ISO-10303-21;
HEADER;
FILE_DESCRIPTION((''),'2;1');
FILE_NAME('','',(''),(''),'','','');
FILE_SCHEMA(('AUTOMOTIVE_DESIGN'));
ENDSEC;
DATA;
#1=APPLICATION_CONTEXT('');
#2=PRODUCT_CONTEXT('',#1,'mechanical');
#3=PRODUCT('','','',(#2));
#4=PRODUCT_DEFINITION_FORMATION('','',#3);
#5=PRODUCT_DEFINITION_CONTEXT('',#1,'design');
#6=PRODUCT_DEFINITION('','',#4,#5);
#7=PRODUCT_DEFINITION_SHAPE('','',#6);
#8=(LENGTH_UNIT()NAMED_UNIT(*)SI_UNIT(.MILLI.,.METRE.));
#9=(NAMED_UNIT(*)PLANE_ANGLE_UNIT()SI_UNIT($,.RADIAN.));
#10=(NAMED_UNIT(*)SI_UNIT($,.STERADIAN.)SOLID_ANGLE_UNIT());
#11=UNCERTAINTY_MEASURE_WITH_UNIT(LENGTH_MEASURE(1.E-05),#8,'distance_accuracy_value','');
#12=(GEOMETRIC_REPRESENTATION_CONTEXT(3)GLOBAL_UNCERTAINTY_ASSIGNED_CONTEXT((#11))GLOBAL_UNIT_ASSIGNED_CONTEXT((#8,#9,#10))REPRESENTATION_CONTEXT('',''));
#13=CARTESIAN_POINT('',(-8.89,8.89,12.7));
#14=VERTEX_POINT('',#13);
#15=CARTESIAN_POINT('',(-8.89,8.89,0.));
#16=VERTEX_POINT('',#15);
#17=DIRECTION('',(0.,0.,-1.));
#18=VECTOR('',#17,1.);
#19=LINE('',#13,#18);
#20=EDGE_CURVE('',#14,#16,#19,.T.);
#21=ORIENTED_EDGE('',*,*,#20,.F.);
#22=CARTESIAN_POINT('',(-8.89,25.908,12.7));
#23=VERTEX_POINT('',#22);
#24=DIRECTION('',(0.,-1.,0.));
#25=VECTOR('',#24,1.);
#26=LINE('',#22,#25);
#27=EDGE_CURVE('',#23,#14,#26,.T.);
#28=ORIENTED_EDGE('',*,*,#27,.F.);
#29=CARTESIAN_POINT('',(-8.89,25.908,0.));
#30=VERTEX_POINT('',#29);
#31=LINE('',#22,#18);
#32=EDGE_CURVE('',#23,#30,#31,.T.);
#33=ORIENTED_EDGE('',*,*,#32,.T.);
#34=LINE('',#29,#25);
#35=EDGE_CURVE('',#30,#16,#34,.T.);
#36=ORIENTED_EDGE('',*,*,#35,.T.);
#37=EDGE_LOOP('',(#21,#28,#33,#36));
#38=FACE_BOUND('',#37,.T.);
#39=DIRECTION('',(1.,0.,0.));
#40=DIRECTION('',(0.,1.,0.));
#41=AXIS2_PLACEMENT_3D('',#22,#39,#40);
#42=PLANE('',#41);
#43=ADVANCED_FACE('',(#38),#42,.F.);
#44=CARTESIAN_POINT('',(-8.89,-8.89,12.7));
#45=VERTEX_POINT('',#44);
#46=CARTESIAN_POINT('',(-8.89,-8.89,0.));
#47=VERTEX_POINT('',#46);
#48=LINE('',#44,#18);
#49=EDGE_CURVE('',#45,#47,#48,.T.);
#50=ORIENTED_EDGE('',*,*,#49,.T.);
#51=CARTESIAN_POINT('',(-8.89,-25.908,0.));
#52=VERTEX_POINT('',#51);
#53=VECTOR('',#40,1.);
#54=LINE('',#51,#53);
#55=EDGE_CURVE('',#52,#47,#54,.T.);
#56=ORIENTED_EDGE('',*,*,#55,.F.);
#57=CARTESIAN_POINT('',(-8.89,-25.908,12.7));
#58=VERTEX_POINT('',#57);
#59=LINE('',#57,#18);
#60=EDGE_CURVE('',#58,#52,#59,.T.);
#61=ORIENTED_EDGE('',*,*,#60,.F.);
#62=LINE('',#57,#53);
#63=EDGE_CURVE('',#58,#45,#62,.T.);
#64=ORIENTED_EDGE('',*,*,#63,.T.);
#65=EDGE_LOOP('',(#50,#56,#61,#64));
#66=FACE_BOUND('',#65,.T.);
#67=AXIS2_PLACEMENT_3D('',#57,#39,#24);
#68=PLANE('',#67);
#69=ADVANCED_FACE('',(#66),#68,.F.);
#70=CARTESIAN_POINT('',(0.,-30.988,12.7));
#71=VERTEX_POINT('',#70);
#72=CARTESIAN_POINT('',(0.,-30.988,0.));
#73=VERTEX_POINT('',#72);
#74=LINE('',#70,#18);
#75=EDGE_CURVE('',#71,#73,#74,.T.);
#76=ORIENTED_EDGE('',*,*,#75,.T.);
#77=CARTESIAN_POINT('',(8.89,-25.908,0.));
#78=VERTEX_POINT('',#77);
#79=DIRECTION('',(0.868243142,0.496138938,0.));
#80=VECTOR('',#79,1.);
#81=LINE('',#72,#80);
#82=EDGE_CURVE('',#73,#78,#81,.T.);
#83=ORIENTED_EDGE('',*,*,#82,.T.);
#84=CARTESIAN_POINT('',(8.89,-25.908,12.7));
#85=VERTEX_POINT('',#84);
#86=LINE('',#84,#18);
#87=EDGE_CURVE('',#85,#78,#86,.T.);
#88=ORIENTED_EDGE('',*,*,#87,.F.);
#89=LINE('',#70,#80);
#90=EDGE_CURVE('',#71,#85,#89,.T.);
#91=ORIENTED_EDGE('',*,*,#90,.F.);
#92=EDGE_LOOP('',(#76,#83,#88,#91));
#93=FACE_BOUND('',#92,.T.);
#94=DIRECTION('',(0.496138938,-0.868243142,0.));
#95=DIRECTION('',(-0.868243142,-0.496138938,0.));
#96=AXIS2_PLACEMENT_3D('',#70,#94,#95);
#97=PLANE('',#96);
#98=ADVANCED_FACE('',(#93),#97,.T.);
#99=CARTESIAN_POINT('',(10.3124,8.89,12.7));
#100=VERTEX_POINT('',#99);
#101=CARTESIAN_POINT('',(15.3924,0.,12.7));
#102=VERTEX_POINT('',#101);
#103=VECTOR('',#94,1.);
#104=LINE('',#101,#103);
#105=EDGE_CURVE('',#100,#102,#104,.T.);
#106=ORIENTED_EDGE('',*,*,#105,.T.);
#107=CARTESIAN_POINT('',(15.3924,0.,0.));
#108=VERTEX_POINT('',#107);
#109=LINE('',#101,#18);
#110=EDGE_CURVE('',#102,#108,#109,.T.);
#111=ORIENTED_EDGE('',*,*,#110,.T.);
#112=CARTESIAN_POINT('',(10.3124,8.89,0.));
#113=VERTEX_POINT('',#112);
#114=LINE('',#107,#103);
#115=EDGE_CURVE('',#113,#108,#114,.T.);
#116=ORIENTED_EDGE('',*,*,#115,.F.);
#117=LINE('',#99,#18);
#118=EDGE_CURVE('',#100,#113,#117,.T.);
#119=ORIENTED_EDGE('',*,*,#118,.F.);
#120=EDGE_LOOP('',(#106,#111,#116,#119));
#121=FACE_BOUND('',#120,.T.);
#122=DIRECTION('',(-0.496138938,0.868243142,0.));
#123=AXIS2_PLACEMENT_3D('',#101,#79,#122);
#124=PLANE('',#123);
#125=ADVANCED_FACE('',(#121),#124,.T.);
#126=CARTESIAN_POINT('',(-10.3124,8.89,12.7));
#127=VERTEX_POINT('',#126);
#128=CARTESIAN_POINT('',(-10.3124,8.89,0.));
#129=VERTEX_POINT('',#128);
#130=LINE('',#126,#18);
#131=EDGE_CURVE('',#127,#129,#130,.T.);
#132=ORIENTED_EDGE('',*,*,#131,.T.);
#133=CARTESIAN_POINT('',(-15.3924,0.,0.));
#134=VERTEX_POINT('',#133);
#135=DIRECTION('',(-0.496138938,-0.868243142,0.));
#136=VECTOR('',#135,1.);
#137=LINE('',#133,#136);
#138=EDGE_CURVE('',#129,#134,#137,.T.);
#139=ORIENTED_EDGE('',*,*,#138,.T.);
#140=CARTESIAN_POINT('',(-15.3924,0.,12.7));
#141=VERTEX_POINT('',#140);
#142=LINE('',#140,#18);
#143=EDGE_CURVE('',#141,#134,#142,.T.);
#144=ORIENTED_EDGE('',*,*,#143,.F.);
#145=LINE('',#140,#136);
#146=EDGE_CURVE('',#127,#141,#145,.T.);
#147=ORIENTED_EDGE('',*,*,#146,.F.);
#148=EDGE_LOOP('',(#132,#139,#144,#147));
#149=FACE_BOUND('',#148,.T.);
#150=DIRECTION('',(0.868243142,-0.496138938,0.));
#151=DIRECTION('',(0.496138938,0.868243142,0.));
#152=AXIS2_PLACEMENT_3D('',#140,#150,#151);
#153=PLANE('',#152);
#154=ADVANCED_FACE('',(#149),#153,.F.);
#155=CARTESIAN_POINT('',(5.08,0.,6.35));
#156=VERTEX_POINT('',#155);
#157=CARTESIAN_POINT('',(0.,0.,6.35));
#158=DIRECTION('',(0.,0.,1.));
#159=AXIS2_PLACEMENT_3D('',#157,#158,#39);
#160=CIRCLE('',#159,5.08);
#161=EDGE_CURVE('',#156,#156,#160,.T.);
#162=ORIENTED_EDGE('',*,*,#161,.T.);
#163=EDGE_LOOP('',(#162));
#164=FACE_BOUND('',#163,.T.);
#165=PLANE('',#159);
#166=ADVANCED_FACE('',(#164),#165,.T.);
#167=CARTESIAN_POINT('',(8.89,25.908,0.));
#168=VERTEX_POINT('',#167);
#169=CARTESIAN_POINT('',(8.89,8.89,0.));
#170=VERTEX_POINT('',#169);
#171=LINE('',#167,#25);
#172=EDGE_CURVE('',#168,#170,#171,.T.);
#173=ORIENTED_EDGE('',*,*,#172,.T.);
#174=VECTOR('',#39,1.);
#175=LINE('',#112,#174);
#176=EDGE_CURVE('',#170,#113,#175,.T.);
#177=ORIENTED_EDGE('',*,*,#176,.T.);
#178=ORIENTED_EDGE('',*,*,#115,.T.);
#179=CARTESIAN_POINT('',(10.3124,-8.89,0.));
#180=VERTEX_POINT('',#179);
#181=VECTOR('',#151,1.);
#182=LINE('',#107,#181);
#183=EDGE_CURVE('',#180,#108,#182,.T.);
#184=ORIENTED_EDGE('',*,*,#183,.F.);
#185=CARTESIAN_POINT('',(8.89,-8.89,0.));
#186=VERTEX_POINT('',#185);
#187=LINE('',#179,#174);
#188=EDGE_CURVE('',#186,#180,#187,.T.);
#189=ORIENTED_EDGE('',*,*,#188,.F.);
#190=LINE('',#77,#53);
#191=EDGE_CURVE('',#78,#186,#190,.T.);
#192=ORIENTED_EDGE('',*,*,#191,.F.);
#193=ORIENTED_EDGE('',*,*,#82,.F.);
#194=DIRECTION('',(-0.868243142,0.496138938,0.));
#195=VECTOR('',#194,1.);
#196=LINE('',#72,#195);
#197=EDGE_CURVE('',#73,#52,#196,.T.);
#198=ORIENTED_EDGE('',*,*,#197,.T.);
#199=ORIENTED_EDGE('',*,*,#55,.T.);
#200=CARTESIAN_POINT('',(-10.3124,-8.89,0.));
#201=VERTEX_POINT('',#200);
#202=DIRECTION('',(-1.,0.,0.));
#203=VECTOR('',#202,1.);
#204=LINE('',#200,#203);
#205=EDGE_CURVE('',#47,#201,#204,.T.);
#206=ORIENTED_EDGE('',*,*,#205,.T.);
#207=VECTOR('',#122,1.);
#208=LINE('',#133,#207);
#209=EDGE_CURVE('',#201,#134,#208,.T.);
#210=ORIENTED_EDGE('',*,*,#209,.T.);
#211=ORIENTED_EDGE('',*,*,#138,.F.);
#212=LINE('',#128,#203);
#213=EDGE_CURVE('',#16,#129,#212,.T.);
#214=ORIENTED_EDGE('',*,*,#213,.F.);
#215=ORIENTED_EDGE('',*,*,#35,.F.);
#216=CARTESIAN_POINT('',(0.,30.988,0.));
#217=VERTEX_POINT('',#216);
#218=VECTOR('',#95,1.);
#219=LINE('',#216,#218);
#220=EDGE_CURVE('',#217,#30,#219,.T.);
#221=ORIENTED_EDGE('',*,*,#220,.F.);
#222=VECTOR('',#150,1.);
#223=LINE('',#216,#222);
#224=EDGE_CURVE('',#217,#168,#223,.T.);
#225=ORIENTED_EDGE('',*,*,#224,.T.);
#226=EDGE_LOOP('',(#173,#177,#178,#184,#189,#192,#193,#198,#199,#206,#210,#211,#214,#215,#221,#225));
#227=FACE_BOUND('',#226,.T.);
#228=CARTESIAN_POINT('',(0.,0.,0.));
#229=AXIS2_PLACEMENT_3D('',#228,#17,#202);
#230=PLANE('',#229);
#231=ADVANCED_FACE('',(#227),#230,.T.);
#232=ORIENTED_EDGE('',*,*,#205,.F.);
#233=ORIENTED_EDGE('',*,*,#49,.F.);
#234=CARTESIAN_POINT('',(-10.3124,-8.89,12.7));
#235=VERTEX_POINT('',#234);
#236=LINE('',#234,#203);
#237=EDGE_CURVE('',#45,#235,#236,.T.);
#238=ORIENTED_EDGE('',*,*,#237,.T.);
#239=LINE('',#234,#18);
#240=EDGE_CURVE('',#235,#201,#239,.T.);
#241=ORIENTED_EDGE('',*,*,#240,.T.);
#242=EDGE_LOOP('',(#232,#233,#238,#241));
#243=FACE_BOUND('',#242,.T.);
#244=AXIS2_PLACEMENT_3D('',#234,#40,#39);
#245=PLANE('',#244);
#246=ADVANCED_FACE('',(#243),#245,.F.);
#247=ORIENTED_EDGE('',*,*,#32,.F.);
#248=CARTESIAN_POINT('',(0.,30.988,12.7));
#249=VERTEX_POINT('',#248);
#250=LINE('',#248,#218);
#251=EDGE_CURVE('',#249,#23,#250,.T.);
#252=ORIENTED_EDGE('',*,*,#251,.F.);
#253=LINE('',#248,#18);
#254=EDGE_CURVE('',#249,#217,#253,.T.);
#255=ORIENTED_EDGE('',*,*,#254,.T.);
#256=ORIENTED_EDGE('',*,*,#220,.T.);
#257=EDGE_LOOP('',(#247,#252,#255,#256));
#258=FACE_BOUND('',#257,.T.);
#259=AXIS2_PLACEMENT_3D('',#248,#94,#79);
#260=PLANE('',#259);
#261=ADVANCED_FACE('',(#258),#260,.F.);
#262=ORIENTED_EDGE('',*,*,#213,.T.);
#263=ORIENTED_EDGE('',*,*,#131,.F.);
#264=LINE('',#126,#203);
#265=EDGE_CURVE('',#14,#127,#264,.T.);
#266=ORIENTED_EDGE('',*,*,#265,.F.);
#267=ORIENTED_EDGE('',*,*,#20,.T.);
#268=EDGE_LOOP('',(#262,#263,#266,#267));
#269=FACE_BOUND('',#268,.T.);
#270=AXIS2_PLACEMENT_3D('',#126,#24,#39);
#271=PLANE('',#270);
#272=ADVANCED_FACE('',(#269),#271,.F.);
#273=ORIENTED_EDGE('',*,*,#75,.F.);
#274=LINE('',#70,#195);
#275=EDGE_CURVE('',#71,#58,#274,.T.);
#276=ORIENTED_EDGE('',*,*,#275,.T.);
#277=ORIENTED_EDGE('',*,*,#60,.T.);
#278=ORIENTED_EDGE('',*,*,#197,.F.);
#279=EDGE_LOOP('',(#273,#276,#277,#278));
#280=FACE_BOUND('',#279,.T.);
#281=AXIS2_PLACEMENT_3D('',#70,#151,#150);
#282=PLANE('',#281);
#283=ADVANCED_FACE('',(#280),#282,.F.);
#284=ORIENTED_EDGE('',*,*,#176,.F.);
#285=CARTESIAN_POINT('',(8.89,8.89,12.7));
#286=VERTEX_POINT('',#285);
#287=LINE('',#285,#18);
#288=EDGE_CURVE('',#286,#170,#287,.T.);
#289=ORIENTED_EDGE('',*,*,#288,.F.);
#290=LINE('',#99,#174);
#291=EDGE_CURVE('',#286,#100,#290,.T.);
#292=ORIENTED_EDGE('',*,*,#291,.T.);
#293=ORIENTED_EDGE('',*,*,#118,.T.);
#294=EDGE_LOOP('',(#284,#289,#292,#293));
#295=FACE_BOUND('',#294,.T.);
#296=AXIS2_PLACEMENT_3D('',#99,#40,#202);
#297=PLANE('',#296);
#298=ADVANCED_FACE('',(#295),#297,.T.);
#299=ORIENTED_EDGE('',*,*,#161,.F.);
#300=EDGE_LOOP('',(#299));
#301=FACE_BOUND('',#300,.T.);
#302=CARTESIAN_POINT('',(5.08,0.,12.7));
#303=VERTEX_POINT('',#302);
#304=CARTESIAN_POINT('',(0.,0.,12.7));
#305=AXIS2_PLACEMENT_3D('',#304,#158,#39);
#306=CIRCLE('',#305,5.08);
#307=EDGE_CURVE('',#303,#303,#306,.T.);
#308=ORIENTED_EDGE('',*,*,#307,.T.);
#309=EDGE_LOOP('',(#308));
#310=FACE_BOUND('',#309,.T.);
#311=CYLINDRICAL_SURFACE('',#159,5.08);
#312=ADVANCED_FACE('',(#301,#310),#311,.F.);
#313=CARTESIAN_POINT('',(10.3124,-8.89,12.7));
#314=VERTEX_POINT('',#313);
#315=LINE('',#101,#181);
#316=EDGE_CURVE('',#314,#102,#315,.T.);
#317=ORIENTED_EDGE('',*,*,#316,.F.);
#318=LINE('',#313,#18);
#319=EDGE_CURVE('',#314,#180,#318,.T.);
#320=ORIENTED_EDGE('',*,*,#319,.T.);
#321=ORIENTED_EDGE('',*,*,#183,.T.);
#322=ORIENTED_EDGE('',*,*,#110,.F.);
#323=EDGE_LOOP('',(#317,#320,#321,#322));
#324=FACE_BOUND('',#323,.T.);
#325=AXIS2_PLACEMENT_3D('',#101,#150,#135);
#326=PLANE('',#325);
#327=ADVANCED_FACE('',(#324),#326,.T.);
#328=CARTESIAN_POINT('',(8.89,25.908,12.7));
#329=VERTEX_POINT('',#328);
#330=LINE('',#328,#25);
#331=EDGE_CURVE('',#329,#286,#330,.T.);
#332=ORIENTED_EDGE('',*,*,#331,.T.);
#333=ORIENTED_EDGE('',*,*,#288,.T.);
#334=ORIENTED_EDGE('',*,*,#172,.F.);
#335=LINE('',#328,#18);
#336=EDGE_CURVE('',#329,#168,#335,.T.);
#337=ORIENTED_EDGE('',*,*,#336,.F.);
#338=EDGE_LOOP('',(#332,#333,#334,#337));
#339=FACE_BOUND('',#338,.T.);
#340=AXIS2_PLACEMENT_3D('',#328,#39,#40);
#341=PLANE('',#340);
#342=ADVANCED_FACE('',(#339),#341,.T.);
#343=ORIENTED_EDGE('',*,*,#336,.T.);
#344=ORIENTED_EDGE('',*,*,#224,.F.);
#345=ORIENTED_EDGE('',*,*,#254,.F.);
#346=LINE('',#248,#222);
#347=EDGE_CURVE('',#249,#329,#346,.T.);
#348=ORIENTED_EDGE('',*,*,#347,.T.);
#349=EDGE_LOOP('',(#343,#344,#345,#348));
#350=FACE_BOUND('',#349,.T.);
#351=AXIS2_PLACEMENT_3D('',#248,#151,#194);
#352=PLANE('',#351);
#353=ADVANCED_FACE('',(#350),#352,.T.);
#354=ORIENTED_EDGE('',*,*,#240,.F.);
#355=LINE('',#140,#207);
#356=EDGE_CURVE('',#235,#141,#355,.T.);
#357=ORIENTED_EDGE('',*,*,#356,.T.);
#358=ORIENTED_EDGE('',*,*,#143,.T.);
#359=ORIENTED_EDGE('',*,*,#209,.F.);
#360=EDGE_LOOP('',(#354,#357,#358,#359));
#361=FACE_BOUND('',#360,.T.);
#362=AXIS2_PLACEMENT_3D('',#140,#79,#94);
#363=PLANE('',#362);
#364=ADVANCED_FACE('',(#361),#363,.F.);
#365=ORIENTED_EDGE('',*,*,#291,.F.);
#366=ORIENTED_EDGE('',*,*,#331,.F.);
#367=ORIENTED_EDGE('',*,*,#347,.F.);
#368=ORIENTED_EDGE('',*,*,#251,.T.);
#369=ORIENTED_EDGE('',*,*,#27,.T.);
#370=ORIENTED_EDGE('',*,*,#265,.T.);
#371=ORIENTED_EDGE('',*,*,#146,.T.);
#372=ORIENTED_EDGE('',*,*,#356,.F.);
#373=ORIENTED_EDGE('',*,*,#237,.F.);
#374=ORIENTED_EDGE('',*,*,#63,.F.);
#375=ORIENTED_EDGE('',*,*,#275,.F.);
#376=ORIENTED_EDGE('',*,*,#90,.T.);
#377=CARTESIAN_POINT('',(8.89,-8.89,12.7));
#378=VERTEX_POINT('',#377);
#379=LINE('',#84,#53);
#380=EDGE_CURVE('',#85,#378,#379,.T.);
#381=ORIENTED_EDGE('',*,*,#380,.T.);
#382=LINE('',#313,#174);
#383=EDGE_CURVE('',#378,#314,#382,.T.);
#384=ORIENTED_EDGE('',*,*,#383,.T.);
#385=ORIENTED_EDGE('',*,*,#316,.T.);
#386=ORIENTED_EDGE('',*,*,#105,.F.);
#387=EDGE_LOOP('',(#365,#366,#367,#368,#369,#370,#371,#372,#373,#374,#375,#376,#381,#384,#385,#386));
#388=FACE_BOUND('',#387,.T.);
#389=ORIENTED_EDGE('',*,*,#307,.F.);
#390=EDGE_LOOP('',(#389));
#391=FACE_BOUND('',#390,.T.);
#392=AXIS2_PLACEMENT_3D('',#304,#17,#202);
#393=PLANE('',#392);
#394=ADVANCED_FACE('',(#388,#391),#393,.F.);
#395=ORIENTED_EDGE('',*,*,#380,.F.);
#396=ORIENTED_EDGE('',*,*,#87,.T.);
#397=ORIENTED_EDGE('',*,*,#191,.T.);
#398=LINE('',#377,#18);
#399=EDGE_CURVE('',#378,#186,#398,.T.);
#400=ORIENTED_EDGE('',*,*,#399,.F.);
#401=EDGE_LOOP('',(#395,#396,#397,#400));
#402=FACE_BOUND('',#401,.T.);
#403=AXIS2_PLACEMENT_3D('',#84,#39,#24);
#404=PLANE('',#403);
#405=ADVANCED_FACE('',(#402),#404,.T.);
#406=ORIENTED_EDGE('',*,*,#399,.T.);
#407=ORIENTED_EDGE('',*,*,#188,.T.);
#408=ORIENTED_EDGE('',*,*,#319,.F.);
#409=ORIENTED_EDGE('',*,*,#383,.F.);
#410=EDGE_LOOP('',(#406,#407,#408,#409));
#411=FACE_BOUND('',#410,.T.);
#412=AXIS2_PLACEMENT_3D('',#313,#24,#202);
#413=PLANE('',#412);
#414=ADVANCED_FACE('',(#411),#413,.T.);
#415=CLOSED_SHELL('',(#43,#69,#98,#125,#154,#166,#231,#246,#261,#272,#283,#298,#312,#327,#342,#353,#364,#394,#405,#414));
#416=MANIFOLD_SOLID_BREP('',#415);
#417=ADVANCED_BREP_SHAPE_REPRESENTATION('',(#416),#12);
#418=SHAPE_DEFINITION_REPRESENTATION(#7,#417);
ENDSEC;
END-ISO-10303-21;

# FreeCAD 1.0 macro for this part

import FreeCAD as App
import Part
import Sketcher
Q = App.Units.Quantity


def add_polygon(sketch, points):
    """Adds a closed chain of lines whose ends are joined by coincident constraints."""
    first, n = sketch.GeometryCount, len(points)
    for a, b in zip(points, points[1:] + points[:1]):
        sketch.addGeometry(Part.LineSegment(App.Vector(*a, 0), App.Vector(*b, 0)), False)
    for i in range(n):
        sketch.addConstraint(Sketcher.Constraint("Coincident", first + i, 2, first + (i + 1) % n, 1))

doc = App.newDocument("Part")
body = doc.addObject("PartDesign::Body", "Body")

sketch1 = body.newObject("Sketcher::SketchObject", "Sketch")
sketch1.AttachmentSupport = (doc.getObject("XY_Plane"), [""])
sketch1.MapMode = "FlatFace"
add_polygon(sketch1, [(-15.4, 0), (0, 0), (0, 31), (-8.9, 25.9), (-8.9, 8.9), (-10.3, 8.9)])
sketch1.addConstraint([
    Sketcher.Constraint("Horizontal", 0),
    Sketcher.Constraint("Vertical", 1),
    Sketcher.Constraint("Vertical", 3),
    Sketcher.Constraint("Horizontal", 4),
    Sketcher.Constraint("Coincident", 0, 2, -1, 1),
    Sketcher.Constraint("Equal", 2, 5),
    Sketcher.Constraint("DistanceY", 1, 1, 1, 2, Q("1.22 in")),
    Sketcher.Constraint("DistanceY", 3, 2, 3, 1, Q("0.67 in")),
    Sketcher.Constraint("DistanceY", 2, 2, 1, 2, Q("0.2 in")),
    Sketcher.Constraint("DistanceX", 5, 2, 4, 2, Q("0.2 in")),
    Sketcher.Constraint("DistanceX", 0, 1, 0, 2, Q("0.606 in")),
])
pad1 = body.newObject("PartDesign::Pad", "Pad")
pad1.Profile = sketch1
pad1.Length = Q("0.5 in")
doc.recompute()

mirrored = body.newObject("PartDesign::Mirrored", "Mirrored")
mirrored.Originals = [pad1]
mirrored.MirrorPlane = (doc.getObject("YZ_Plane"), [""])
body.Tip = mirrored
doc.recompute()

mirrored2 = body.newObject("PartDesign::Mirrored", "Mirrored001")
mirrored2.Originals = [pad1]
mirrored2.MirrorPlane = (doc.getObject("XZ_Plane"), [""])
body.Tip = mirrored2

sketch2 = body.newObject("Sketcher::SketchObject", "Sketch001")
sketch2.AttachmentSupport = (doc.getObject("XY_Plane"), [""])
sketch2.MapMode = "FlatFace"
add_polygon(sketch2, [(15.4, 0), (0, 0), (0, -31), (8.9, -25.9), (8.9, -8.9), (10.3, -8.9)])
sketch2.addConstraint([
    Sketcher.Constraint("Horizontal", 0),
    Sketcher.Constraint("Vertical", 1),
    Sketcher.Constraint("Vertical", 3),
    Sketcher.Constraint("Horizontal", 4),
    Sketcher.Constraint("Coincident", 0, 2, -1, 1),
    Sketcher.Constraint("Equal", 2, 5),
    Sketcher.Constraint("DistanceY", 1, 2, 1, 1, Q("1.22 in")),
    Sketcher.Constraint("DistanceY", 3, 1, 3, 2, Q("0.67 in")),
    Sketcher.Constraint("DistanceY", 1, 2, 2, 2, Q("0.2 in")),
    Sketcher.Constraint("DistanceX", 4, 2, 5, 2, Q("0.2 in")),
    Sketcher.Constraint("DistanceX", 0, 2, 0, 1, Q("0.606 in")),
])
pad2 = body.newObject("PartDesign::Pad", "Pad001")
pad2.Profile = sketch2
pad2.Length = Q("0.5 in")

sketch3 = body.newObject("Sketcher::SketchObject", "Sketch002")
sketch3.AttachmentSupport = (doc.getObject("XY_Plane"), [""])
sketch3.MapMode = "FlatFace"
sketch3.AttachmentOffset = App.Placement(App.Vector(0, 0, 0.5 * 25.4), App.Rotation())
sketch3.addGeometry(Part.Circle(App.Vector(0, 0, 0), App.Vector(0, 0, 1), 5), False)
sketch3.addConstraint([
    Sketcher.Constraint("Coincident", 0, 3, -1, 1),
    Sketcher.Constraint("Diameter", 0, Q("0.4 in")),
])
pocket1 = body.newObject("PartDesign::Pocket", "Pocket")
pocket1.Profile = sketch3
pocket1.Length = Q("0.25 in")

doc.recompute()
